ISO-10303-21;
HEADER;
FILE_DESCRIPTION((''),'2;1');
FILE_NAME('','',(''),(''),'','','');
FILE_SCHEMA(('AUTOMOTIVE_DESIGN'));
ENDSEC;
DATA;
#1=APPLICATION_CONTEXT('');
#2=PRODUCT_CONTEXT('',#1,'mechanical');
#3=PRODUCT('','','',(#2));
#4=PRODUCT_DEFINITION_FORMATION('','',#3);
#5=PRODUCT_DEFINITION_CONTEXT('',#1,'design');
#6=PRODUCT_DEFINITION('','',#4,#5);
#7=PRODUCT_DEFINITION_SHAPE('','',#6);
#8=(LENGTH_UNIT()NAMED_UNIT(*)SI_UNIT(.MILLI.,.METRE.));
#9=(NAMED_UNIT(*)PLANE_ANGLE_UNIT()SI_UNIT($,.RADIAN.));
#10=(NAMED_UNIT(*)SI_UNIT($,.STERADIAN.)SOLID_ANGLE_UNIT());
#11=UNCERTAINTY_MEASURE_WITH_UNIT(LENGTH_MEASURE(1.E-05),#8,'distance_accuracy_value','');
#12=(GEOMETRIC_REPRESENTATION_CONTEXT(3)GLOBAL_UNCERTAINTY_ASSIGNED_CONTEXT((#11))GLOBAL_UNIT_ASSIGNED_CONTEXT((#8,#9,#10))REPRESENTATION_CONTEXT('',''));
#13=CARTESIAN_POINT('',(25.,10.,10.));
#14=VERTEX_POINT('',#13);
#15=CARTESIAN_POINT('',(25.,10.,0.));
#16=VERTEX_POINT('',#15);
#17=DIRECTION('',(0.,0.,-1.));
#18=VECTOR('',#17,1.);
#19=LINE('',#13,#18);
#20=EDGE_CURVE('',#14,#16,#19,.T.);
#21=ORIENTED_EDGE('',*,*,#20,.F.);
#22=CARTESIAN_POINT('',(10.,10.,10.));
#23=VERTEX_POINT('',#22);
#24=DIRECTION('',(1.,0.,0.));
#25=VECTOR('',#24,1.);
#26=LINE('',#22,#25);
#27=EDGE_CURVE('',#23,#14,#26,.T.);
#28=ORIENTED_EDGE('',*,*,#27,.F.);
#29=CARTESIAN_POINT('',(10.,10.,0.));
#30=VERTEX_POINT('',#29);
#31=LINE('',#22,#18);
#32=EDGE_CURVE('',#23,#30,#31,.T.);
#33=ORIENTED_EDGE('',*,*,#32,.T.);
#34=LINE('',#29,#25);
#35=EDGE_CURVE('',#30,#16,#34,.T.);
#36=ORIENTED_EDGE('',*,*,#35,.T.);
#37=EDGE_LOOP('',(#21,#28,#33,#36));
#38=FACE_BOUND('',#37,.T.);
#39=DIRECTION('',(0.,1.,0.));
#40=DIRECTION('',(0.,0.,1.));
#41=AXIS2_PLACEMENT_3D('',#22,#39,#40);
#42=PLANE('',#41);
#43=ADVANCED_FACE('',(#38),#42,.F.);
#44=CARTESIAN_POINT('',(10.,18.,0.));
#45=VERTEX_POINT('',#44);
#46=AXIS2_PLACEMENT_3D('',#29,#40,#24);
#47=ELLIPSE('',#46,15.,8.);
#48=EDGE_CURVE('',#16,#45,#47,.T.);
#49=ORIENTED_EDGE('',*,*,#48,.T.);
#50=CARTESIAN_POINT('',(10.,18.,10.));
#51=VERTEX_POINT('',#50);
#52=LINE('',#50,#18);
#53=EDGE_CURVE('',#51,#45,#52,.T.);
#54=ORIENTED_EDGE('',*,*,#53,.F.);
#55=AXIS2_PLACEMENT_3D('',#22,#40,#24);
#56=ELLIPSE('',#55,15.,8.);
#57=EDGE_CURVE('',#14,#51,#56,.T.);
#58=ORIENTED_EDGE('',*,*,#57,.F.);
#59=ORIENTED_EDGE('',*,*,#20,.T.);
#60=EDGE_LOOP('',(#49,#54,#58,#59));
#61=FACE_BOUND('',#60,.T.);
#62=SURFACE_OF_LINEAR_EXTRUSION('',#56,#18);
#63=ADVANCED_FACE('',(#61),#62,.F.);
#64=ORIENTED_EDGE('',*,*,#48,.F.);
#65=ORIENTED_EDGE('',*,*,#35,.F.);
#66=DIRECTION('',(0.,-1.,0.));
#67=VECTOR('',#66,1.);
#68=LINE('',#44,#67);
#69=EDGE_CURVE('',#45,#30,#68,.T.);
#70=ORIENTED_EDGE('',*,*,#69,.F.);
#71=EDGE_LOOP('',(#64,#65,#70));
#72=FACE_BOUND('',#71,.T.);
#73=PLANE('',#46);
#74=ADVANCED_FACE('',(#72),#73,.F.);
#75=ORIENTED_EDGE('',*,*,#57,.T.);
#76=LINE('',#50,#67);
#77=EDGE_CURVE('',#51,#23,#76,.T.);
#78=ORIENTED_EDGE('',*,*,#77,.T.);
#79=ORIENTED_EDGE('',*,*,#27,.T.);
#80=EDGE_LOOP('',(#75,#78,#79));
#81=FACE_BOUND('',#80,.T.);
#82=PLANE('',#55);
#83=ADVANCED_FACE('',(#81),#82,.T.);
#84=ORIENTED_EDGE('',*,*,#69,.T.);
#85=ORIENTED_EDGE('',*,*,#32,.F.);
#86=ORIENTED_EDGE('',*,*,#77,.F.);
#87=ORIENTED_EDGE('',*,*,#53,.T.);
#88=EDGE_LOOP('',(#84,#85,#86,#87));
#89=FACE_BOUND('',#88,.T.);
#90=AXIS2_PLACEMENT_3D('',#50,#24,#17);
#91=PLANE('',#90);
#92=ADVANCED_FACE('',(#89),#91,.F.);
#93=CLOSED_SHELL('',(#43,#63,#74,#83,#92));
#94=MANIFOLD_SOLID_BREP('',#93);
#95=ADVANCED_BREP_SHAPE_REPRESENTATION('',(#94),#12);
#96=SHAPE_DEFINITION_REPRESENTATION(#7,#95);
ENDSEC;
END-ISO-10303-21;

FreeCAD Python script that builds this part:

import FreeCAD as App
import Part
import Sketcher

V = App.Vector

doc = App.newDocument("Part")
body = doc.addObject("PartDesign::Body", "Body")

# Sketch on XY plane
sketch1 = body.newObject("Sketcher::SketchObject", "Sketch")
sketch1.AttachmentSupport = (doc.getObject("XY_Plane"), [""])
sketch1.MapMode = "FlatFace"
sketch1.addGeometry([
    Part.LineSegment(V(10, 18, 0), V(10, 10, 0)),
    Part.LineSegment(V(10, 10, 0), V(25, 10, 0)),
    Part.BSplineCurve([V(25, 10, 0), V(25, 18, 0), V(10, 18, 0)], [3, 3], [0, 1.570796327], False, 2, [1, 0.707106781, 1], False),
], False)
sketch1.addConstraint([
    Sketcher.Constraint("Block", 2),
    Sketcher.Constraint("Coincident", 0, 2, 1, 1),
    Sketcher.Constraint("Coincident", 1, 2, 2, 1),
    Sketcher.Constraint("Coincident", 2, 2, 0, 1),
    Sketcher.Constraint("Vertical", 0),
    Sketcher.Constraint("Horizontal", 1),
])
pad1 = body.newObject("PartDesign::Pad", "Pad")
pad1.Profile = sketch1
pad1.Length = 10

doc.recompute()
